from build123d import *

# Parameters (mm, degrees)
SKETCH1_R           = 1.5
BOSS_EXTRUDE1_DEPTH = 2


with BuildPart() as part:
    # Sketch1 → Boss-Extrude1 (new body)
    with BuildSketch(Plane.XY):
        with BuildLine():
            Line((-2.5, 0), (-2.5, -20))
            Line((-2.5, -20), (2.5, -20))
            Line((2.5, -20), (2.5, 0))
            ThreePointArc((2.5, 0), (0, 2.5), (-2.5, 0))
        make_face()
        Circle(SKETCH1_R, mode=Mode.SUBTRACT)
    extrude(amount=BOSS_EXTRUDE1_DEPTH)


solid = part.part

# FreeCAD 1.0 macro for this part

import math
import FreeCAD as App
import Part
import Sketcher
Q = App.Units.Quantity

doc = App.newDocument("Part")
body = doc.addObject("PartDesign::Body", "Body")

# Sketch on XY plane
sketch1 = body.newObject("Sketcher::SketchObject", "Sketch")
sketch1.AttachmentSupport = (doc.getObject("XY_Plane"), [""])
sketch1.MapMode = "FlatFace"
sketch1.addGeometry([
    Part.LineSegment(App.Vector(-2.5, 0, 0), App.Vector(-2.5, -20, 0)),  # 0
    Part.LineSegment(App.Vector(-2.5, -20, 0), App.Vector(2.5, -20, 0)),  # 1
    Part.LineSegment(App.Vector(2.5, -20, 0), App.Vector(2.5, 0, 0)),  # 2
    Part.ArcOfCircle(Part.Circle(App.Vector(0, 0, 0), App.Vector(0, 0, 1), 2.5), math.radians(0), math.radians(180)),  # 3
    Part.Circle(App.Vector(0, 0, 0), App.Vector(0, 0, 1), 1.5),  # 4
], False)
sketch1.addConstraint([
    Sketcher.Constraint("Coincident", 0, 2, 1, 1),
    Sketcher.Constraint("Coincident", 1, 2, 2, 1),
    Sketcher.Constraint("Tangent", 2, 2, 3, 1),
    Sketcher.Constraint("Tangent", 3, 2, 0, 1),
    Sketcher.Constraint("Vertical", 0),
    Sketcher.Constraint("Horizontal", 1),
    Sketcher.Constraint("Vertical", 2),
    Sketcher.Constraint("Coincident", 3, 3, -1, 1),
    Sketcher.Constraint("Coincident", 4, 3, -1, 1),
    Sketcher.Constraint("Diameter", 4, Q("3 mm")),
    Sketcher.Constraint("Radius", 3, Q("2.5 mm")),
    Sketcher.Constraint("DistanceY", 0, 2, 0, 1, Q("20 mm")),
])
pad1 = body.newObject("PartDesign::Pad", "Pad")
pad1.Profile = sketch1
pad1.Length = 2

doc.recompute()
